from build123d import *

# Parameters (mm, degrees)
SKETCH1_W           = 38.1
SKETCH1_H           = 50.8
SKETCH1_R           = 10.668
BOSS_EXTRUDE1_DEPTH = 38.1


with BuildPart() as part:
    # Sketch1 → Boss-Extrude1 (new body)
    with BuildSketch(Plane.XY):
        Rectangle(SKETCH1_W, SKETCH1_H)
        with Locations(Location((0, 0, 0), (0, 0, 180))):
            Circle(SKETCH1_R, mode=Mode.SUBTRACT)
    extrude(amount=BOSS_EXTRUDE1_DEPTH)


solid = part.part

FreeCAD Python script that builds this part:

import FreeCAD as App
import Part
import Sketcher

V = App.Vector
Q = App.Units.Quantity

doc = App.newDocument("Part")
body = doc.addObject("PartDesign::Body", "Body")

sketch1 = body.newObject("Sketcher::SketchObject", "Sketch")
sketch1.AttachmentSupport = (doc.getObject("XY_Plane"), [""])
sketch1.MapMode = "FlatFace"
sketch1.addGeometry([
    Part.LineSegment(V(-19, 25, 0), V(-19, -25, 0)),
    Part.LineSegment(V(-19, -25, 0), V(19, -25, 0)),
    Part.LineSegment(V(19, -25, 0), V(19, 25, 0)),
    Part.LineSegment(V(19, 25, 0), V(-19, 25, 0)),
    Part.Circle(V(0, 0, 0), V(0, 0, 1), 11),
], False)
sketch1.addConstraint([
    Sketcher.Constraint("Coincident", 0, 2, 1, 1),
    Sketcher.Constraint("Coincident", 1, 2, 2, 1),
    Sketcher.Constraint("Coincident", 2, 2, 3, 1),
    Sketcher.Constraint("Coincident", 3, 2, 0, 1),
    Sketcher.Constraint("Vertical", 0),
    Sketcher.Constraint("Horizontal", 1),
    Sketcher.Constraint("Vertical", 2),
    Sketcher.Constraint("Horizontal", 3),
    Sketcher.Constraint("Coincident", 4, 3, -1, 1),
    Sketcher.Constraint("Symmetric", 0, 2, 2, 2, -1, 1),
    Sketcher.Constraint("Diameter", 4, Q("0.84 in")),
    Sketcher.Constraint("DistanceY", 0, 2, 0, 1, Q("2 in")),
    Sketcher.Constraint("DistanceX", 1, 1, 1, 2, Q("1.5 in")),
])
pad1 = body.newObject("PartDesign::Pad", "Pad")
pad1.Profile = sketch1
pad1.Length = Q("1.5 in")

doc.recompute()
